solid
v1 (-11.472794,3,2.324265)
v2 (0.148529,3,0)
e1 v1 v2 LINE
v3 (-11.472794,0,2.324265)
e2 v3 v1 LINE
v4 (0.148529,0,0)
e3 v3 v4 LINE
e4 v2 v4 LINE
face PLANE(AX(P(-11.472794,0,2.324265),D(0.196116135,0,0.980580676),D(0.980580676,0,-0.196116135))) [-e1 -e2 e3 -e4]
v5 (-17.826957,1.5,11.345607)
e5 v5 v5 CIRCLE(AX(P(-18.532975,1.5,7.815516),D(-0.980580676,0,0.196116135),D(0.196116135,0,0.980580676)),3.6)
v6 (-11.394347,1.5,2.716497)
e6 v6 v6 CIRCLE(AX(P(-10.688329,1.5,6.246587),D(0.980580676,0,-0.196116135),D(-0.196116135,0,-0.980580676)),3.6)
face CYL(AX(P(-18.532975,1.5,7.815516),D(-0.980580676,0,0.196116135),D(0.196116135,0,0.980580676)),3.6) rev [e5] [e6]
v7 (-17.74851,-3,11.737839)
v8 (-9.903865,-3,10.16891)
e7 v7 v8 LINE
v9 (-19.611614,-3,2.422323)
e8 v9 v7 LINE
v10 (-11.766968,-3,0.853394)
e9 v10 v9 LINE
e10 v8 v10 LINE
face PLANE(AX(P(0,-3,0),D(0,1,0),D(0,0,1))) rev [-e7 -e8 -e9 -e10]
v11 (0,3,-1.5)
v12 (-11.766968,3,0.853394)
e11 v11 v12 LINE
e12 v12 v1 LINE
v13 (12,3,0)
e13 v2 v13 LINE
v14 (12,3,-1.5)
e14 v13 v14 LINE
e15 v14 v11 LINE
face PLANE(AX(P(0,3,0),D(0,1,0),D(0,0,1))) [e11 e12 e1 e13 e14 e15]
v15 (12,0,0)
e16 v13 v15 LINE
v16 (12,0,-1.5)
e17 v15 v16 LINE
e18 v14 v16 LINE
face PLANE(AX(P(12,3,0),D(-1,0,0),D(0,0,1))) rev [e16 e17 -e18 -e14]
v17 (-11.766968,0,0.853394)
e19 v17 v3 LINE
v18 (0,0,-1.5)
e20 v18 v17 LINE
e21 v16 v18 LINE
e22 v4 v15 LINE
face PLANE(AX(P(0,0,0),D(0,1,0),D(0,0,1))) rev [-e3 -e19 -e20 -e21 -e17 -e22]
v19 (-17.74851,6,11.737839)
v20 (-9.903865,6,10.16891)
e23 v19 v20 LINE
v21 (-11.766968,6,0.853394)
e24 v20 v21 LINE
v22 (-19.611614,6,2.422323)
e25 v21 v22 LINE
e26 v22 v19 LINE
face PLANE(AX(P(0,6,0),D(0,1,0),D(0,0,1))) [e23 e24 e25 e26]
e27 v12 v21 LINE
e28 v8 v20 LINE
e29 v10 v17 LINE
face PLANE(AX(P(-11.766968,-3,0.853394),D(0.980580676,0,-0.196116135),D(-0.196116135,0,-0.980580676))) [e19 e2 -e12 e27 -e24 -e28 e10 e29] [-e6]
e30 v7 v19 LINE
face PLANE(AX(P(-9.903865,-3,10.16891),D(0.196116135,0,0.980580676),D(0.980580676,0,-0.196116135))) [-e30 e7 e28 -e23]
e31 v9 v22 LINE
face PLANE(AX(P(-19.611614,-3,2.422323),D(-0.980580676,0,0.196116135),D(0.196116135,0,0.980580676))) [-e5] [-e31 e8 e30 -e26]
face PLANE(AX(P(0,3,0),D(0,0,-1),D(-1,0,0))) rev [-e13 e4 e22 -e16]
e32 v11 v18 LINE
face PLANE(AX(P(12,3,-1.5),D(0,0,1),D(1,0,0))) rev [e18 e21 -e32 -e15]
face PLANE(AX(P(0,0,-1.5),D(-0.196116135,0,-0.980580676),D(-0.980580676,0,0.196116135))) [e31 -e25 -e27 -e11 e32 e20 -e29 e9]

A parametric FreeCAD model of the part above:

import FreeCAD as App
import Part
import Sketcher

V = App.Vector
Q = App.Units.Quantity

doc = App.newDocument("Part")
params = doc.addObject("Spreadsheet::Sheet", "Params")
for row, (alias, value) in enumerate([
    ("sketch1_width", "12 mm"),
    ("sketch1_height", "1.5 mm"),
    ("pad1_length", "3 mm"),
    ("sketch2_length", "12 mm"),
    ("sketch2_length2", "1.5 mm"),
    ("pad2_length", "3 mm"),
    ("sketch3_length", "8 mm"),
    ("sketch3_length2", "9.5 mm"),
    ("pad3_length", "3 mm"),
    ("pad3_length2", "6 mm"),
    ("sketch4_diameter", "7.2 mm"),
    ("hole_diameter", "7.2 mm"),
    ("hole_depth", "10 mm"),
], start=1):
    params.set(f"A{row}", alias)
    params.set(f"B{row}", "=" + value)
    params.setAlias(f"B{row}", alias)

body = doc.addObject("PartDesign::Body", "Body")

sketch1 = body.newObject("Sketcher::SketchObject", "Sketch")
sketch1.AttachmentSupport = (doc.getObject("XZ_Plane"), [""])
sketch1.MapMode = "FlatFace"
sketch1.addGeometry([
    Part.LineSegment(V(0, -1.5, 0), V(0, 0, 0)),
    Part.LineSegment(V(0, 0, 0), V(12, 0, 0)),
    Part.LineSegment(V(12, 0, 0), V(12, -1.5, 0)),
    Part.LineSegment(V(12, -1.5, 0), V(0, -1.5, 0)),
], False)
sketch1.addConstraint([
    Sketcher.Constraint("Coincident", 0, 2, 1, 1),
    Sketcher.Constraint("Coincident", 1, 2, 2, 1),
    Sketcher.Constraint("Coincident", 2, 2, 3, 1),
    Sketcher.Constraint("Coincident", 3, 2, 0, 1),
    Sketcher.Constraint("Vertical", 0),
    Sketcher.Constraint("Horizontal", 1),
    Sketcher.Constraint("Vertical", 2),
    Sketcher.Constraint("Horizontal", 3),
    Sketcher.Constraint("Coincident", 0, 2, -1, 1),
    Sketcher.Constraint("DistanceX", 1, 1, 1, 2, Q("12 mm")),
    Sketcher.Constraint("DistanceY", 0, 1, 0, 2, Q("1.5 mm")),
])
sketch1.setExpression("Constraints[9]", "Params.sketch1_width")
sketch1.setExpression("Constraints[10]", "Params.sketch1_height")
pad1 = body.newObject("PartDesign::Pad", "Pad")
pad1.Profile = sketch1
pad1.setExpression("Length", "Params.pad1_length")
pad1.Reversed = True

sketch2 = body.newObject("Sketcher::SketchObject", "Sketch001")
sketch2.AttachmentSupport = (doc.getObject("XZ_Plane"), [""])
sketch2.MapMode = "FlatFace"
sketch2.AttachmentOffset = App.Placement(V(0, 0, -3), App.Rotation())
sketch2.addGeometry([
    Part.LineSegment(V(0, -1.5, 0), V(-11.8, 0.9, 0)),
    Part.LineSegment(V(-11.8, 0.9, 0), V(-11.5, 2.3, 0)),
    Part.LineSegment(V(-11.5, 2.3, 0), V(0.3, 0, 0)),
    Part.LineSegment(V(0.3, 0, 0), V(0, -1.5, 0)),
], False)
sketch2.addConstraint([
    Sketcher.Constraint("Coincident", 0, 2, 1, 1),
    Sketcher.Constraint("Coincident", 1, 2, 2, 1),
    Sketcher.Constraint("Coincident", 2, 2, 3, 1),
    Sketcher.Constraint("Coincident", 3, 2, 0, 1),
    Sketcher.Constraint("PointOnObject", 3, 2, -2),
    Sketcher.Constraint("Perpendicular", 0, 1),
    Sketcher.Constraint("Perpendicular", 1, 2),
    Sketcher.Constraint("Perpendicular", 2, 3),
    Sketcher.Constraint("Distance", 0, Q("12 mm")),
    Sketcher.Constraint("Distance", 1, Q("1.5 mm")),
    Sketcher.Constraint("DistanceY", 3, 2, -1, 1, Q("1.5 mm")),
    Sketcher.Constraint("DistanceX", 0, 2, -1, 1, Q("11.766968 mm")),
])
sketch2.setExpression("Constraints[8]", "Params.sketch2_length")
sketch2.setExpression("Constraints[9]", "Params.sketch2_length2")
pad2 = body.newObject("PartDesign::Pad", "Pad001")
pad2.Profile = sketch2
pad2.setExpression("Length", "Params.pad2_length")

sketch3 = body.newObject("Sketcher::SketchObject", "Sketch002")
sketch3.AttachmentSupport = (doc.getObject("XZ_Plane"), [""])
sketch3.MapMode = "FlatFace"
sketch3.AttachmentOffset = App.Placement(V(0, 0, -3), App.Rotation())
sketch3.addGeometry([
    Part.LineSegment(V(-10, 10, 0), V(-12, 1, 0)),
    Part.LineSegment(V(-12, 1, 0), V(-20, 2, 0)),
    Part.LineSegment(V(-20, 2, 0), V(-18, 12, 0)),
    Part.LineSegment(V(-18, 12, 0), V(-10, 10, 0)),
], False)
sketch3.addConstraint([
    Sketcher.Constraint("Coincident", 0, 2, 1, 1),
    Sketcher.Constraint("Coincident", 1, 2, 2, 1),
    Sketcher.Constraint("Coincident", 2, 2, 3, 1),
    Sketcher.Constraint("Coincident", 3, 2, 0, 1),
    Sketcher.Constraint("Perpendicular", 0, 1),
    Sketcher.Constraint("Perpendicular", 1, 2),
    Sketcher.Constraint("Perpendicular", 2, 3),
    Sketcher.Constraint("Distance", 1, Q("8 mm")),
    Sketcher.Constraint("Distance", 0, Q("9.5 mm")),
    Sketcher.Constraint("DistanceX", 0, 2, -1, 1, Q("11.766968 mm")),
    Sketcher.Constraint("DistanceX", 2, 2, -1, 1, Q("17.74851 mm")),
    Sketcher.Constraint("DistanceY", -1, 1, 2, 2, Q("11.737839 mm")),
])
sketch3.setExpression("Constraints[7]", "Params.sketch3_length")
sketch3.setExpression("Constraints[8]", "Params.sketch3_length2")
pad3 = body.newObject("PartDesign::Pad", "Pad002")
pad3.Profile = sketch3
pad3.Type = "TwoLengths"
pad3.setExpression("Length", "Params.pad3_length")
pad3.setExpression("Length2", "Params.pad3_length2")
pad3.Reversed = True

sketch4 = body.newObject("Sketcher::SketchObject", "Sketch003")
sketch4.Placement = App.Placement(V(-19.323152, 0, 3.86463), App.Rotation(V(0.196116135, 0, 0.980580676), V(0, 1.000000001, 0), V(-0.980580676, 0, 0.196116135), "ZXY"))
sketch4.addGeometry(Part.Circle(V(4, 1.5, 0), V(0, 0, 1), 3.6), False)
sketch4.addConstraint([
    Sketcher.Constraint("Diameter", 0, Q("7.2 mm")),
    Sketcher.Constraint("DistanceY", -1, 1, 0, 3, Q("1.5 mm")),
    Sketcher.Constraint("DistanceX", -1, 1, 0, 3, Q("4.029129 mm")),
])
sketch4.setExpression("Constraints[0]", "Params.sketch4_diameter")
doc.recompute()
hole = body.newObject("PartDesign::Hole", "Hole")
hole.Profile = sketch4
hole.ThreadType = "None"
hole.setExpression("Diameter", "Params.hole_diameter")
hole.DepthType = "Dimension"
hole.setExpression("Depth", "Params.hole_depth")
hole.DrillPoint = "Flat"

doc.recompute()
